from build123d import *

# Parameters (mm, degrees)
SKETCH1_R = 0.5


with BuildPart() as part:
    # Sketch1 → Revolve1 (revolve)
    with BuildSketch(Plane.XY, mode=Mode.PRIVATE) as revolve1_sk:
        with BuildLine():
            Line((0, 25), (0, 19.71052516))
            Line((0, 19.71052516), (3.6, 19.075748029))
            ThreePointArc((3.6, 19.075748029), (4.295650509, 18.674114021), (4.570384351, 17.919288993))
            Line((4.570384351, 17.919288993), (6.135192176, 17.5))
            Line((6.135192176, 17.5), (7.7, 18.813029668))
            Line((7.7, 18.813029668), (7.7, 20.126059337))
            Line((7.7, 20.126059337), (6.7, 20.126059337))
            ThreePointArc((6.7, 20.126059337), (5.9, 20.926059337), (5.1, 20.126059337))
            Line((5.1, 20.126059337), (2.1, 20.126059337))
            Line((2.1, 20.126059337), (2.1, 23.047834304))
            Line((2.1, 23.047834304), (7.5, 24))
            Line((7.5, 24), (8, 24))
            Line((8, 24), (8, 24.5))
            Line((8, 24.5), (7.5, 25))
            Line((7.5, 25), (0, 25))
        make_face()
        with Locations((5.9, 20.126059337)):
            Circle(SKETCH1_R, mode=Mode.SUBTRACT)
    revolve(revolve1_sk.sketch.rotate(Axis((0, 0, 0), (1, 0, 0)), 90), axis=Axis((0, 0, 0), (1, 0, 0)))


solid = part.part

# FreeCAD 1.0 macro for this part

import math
import FreeCAD as App
import Part
import Sketcher
from FreeCAD import Vector
Q = App.Units.Quantity

doc = App.newDocument("Part")
body = doc.addObject("PartDesign::Body", "Body")

# Sketch on XY plane
sketch1 = body.newObject("Sketcher::SketchObject", "Sketch")
sketch1.AttachmentSupport = (doc.getObject("XY_Plane"), [""])
sketch1.MapMode = "FlatFace"
sketch1.addGeometry([
    Part.LineSegment(Vector(0, 25, 0), Vector(0, 19.710525, 0)),  # 0
    Part.LineSegment(Vector(0, 19.710525, 0), Vector(3.6, 19.075748, 0)),  # 1
    Part.ArcOfCircle(Part.Circle(Vector(3.396085, 17.919289, 0), Vector(0, 0, 1), 1.174299), math.radians(0), math.radians(80)),  # 2
    Part.LineSegment(Vector(4.570384, 17.919289, 0), Vector(6.135192, 17.5, 0)),  # 3
    Part.LineSegment(Vector(6.135192, 17.5, 0), Vector(7.7, 18.81303, 0)),  # 4
    Part.LineSegment(Vector(7.7, 18.81303, 0), Vector(7.7, 20.126059, 0)),  # 5
    Part.LineSegment(Vector(7.7, 20.126059, 0), Vector(6.7, 20.126059, 0)),  # 6
    Part.ArcOfCircle(Part.Circle(Vector(5.9, 20.126059, 0), Vector(0, 0, 1), 0.8), math.radians(0), math.radians(180)),  # 7
    Part.LineSegment(Vector(5.1, 20.126059, 0), Vector(2.1, 20.126059, 0)),  # 8
    Part.LineSegment(Vector(2.1, 20.126059, 0), Vector(2.1, 23.047834, 0)),  # 9
    Part.LineSegment(Vector(2.1, 23.047834, 0), Vector(7.5, 24, 0)),  # 10
    Part.LineSegment(Vector(7.5, 24, 0), Vector(8, 24, 0)),  # 11
    Part.LineSegment(Vector(8, 24, 0), Vector(8, 24.5, 0)),  # 12
    Part.LineSegment(Vector(8, 24.5, 0), Vector(7.5, 25, 0)),  # 13
    Part.LineSegment(Vector(7.5, 25, 0), Vector(0, 25, 0)),  # 14
    Part.Circle(Vector(5.9, 20.126059, 0), Vector(0, 0, 1), 0.5),  # 15
], False)
sketch1.addConstraint([
    Sketcher.Constraint("Coincident", 0, 2, 1, 1),
    Sketcher.Constraint("Tangent", 1, 2, 2, 2),
    Sketcher.Constraint("Coincident", 2, 1, 3, 1),
    Sketcher.Constraint("Coincident", 3, 2, 4, 1),
    Sketcher.Constraint("Coincident", 4, 2, 5, 1),
    Sketcher.Constraint("Coincident", 5, 2, 6, 1),
    Sketcher.Constraint("Coincident", 6, 2, 7, 1),
    Sketcher.Constraint("Coincident", 7, 2, 8, 1),
    Sketcher.Constraint("Coincident", 8, 2, 9, 1),
    Sketcher.Constraint("Coincident", 9, 2, 10, 1),
    Sketcher.Constraint("Coincident", 10, 2, 11, 1),
    Sketcher.Constraint("Coincident", 11, 2, 12, 1),
    Sketcher.Constraint("Coincident", 12, 2, 13, 1),
    Sketcher.Constraint("Coincident", 13, 2, 14, 1),
    Sketcher.Constraint("Coincident", 14, 2, 0, 1),
    Sketcher.Constraint("Vertical", 0),
    Sketcher.Constraint("Vertical", 5),
    Sketcher.Constraint("Horizontal", 6),
    Sketcher.Constraint("Horizontal", 8),
    Sketcher.Constraint("Vertical", 9),
    Sketcher.Constraint("Horizontal", 11),
    Sketcher.Constraint("Vertical", 12),
    Sketcher.Constraint("Horizontal", 14),
    Sketcher.Constraint("Coincident", 15, 3, 7, 3),
    Sketcher.Constraint("PointOnObject", 0, 2, -2),
    Sketcher.Constraint("Horizontal", 15, 3, 5, 2),
    Sketcher.Constraint("Horizontal", 6, 2, 7, 2),
    Sketcher.Constraint("Vertical", 10, 2, 13, 2),
    Sketcher.Constraint("Equal", 11, 12),
    Sketcher.Constraint("Diameter", 15, 1.0),
    Sketcher.Constraint("Radius", 7, 0.8),
    Sketcher.Constraint("DistanceX", 6, 2, 6, 1, 1.0),
    Sketcher.Constraint("DistanceX", 8, 2, 8, 1, 3.0),
    Sketcher.Constraint("Angle", 1, Q("-10 deg")),
    Sketcher.Constraint("Angle", 3, Q("-15 deg")),
    Sketcher.Constraint("Angle", 4, Q("40 deg")),
    Sketcher.Constraint("Angle", 10, Q("10 deg")),
    Sketcher.Constraint("Angle", 13, Q("135 deg")),
    Sketcher.Constraint("DistanceX", 11, 1, 11, 2, 0.5),
    Sketcher.Constraint("DistanceX", 14, 2, 14, 1, 7.5),
    Sketcher.Constraint("DistanceY", -1, 1, 10, 2, 24.0),
    Sketcher.Constraint("DistanceX", -1, 1, 7, 3, 5.9),
    Sketcher.Constraint("DistanceX", -1, 1, 1, 2, 3.6),
    Sketcher.Constraint("DistanceY", -1, 1, 3, 2, 17.5),
    Sketcher.Constraint("Radius", 2, 1.174299),
    Sketcher.Constraint("DistanceY", 5, 1, 5, 2, 1.31303),
    Sketcher.Constraint("Distance", 3, 1.620008),
    Sketcher.Constraint("DistanceY", 0, 2, 0, 1, 5.289475),
])
revolution = body.newObject("PartDesign::Revolution", "Revolution")
revolution.Profile = sketch1
revolution.ReferenceAxis = (sketch1, ["H_Axis"])
revolution.Angle = 360

doc.recompute()
